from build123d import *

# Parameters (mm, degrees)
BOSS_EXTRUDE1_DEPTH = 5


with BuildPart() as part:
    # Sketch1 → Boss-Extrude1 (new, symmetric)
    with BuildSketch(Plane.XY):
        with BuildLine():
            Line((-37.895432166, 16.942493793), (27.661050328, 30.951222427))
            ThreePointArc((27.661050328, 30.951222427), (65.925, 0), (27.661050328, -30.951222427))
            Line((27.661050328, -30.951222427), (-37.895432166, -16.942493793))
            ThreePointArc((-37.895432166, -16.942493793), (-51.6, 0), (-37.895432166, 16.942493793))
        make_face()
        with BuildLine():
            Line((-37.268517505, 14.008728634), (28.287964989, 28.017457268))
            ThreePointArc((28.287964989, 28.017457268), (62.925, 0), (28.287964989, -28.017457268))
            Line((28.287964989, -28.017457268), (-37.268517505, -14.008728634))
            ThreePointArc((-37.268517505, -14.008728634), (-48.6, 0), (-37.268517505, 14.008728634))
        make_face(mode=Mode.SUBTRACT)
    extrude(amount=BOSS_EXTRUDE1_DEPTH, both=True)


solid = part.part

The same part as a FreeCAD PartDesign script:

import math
import FreeCAD as App
import Part
import Sketcher
Q = App.Units.Quantity

doc = App.newDocument("Part")
body = doc.addObject("PartDesign::Body", "Body")

# Sketch on XY plane
sketch1 = doc.addObject("Sketcher::SketchObject", "Sketch")
body.addObject(sketch1)
sketch1.AttachmentSupport = (doc.XY_Plane, [""])
sketch1.MapMode = "FlatFace"
sketch1.addGeometry(Part.LineSegment(App.Vector(27.66105, 30.951222, 0), App.Vector(-37.895432, 16.942494, 0)), False)
sketch1.addGeometry(Part.ArcOfCircle(Part.Circle(App.Vector(-34.275, 0, 0), App.Vector(0, 0, 1), 17.325), math.radians(102.062089), math.radians(257.937911)), False)
sketch1.addGeometry(Part.LineSegment(App.Vector(-37.895432, -16.942494, 0), App.Vector(27.66105, -30.951222, 0)), False)
sketch1.addGeometry(Part.ArcOfCircle(Part.Circle(App.Vector(34.275, 0, 0), App.Vector(0, 0, 1), 31.65), math.radians(-102.062089), math.radians(102.062089)), False)
sketch1.addGeometry(Part.LineSegment(App.Vector(-37.268518, 14.008729, 0), App.Vector(28.287965, 28.017457, 0)), False)
sketch1.addGeometry(Part.ArcOfCircle(Part.Circle(App.Vector(34.275, 0, 0), App.Vector(0, 0, 1), 28.65), math.radians(-102.062089), math.radians(102.062089)), False)
sketch1.addGeometry(Part.LineSegment(App.Vector(28.287965, -28.017457, 0), App.Vector(-37.268518, -14.008729, 0)), False)
sketch1.addGeometry(Part.ArcOfCircle(Part.Circle(App.Vector(-34.275, 0, 0), App.Vector(0, 0, 1), 14.325), math.radians(102.062089), math.radians(257.937911)), False)
sketch1.addConstraint(Sketcher.Constraint("Tangent", 0, 2, 1, 1))
sketch1.addConstraint(Sketcher.Constraint("Tangent", 1, 2, 2, 1))
sketch1.addConstraint(Sketcher.Constraint("Tangent", 2, 2, 3, 1))
sketch1.addConstraint(Sketcher.Constraint("Tangent", 3, 2, 0, 1))
sketch1.addConstraint(Sketcher.Constraint("Tangent", 4, 2, 5, 2))
sketch1.addConstraint(Sketcher.Constraint("Tangent", 5, 1, 6, 1))
sketch1.addConstraint(Sketcher.Constraint("Tangent", 6, 2, 7, 2))
sketch1.addConstraint(Sketcher.Constraint("Tangent", 7, 1, 4, 1))
sketch1.addConstraint(Sketcher.Constraint("Coincident", 5, 3, 3, 3))
sketch1.addConstraint(Sketcher.Constraint("Coincident", 7, 3, 1, 3))
sketch1.addConstraint(Sketcher.Constraint("Symmetric", 1, 3, 3, 3, -1, 1))
sketch1.addConstraint(Sketcher.Constraint("PointOnObject", 1, 3, -1))
sketch1.addConstraint(Sketcher.Constraint("Parallel", 0, 4))
sketch1.addConstraint(Sketcher.Constraint("Radius", 3, Q("31.65 mm")))
sketch1.addConstraint(Sketcher.Constraint("Radius", 5, Q("28.65 mm")))
sketch1.addConstraint(Sketcher.Constraint("Radius", 1, Q("17.325 mm")))
sketch1.addConstraint(Sketcher.Constraint("DistanceX", 1, 3, 3, 3, Q("68.55 mm")))
pad1 = doc.addObject("PartDesign::Pad", "Pad")
body.addObject(pad1)
pad1.Profile = sketch1
pad1.Length = 10
pad1.Midplane = True

doc.recompute()
